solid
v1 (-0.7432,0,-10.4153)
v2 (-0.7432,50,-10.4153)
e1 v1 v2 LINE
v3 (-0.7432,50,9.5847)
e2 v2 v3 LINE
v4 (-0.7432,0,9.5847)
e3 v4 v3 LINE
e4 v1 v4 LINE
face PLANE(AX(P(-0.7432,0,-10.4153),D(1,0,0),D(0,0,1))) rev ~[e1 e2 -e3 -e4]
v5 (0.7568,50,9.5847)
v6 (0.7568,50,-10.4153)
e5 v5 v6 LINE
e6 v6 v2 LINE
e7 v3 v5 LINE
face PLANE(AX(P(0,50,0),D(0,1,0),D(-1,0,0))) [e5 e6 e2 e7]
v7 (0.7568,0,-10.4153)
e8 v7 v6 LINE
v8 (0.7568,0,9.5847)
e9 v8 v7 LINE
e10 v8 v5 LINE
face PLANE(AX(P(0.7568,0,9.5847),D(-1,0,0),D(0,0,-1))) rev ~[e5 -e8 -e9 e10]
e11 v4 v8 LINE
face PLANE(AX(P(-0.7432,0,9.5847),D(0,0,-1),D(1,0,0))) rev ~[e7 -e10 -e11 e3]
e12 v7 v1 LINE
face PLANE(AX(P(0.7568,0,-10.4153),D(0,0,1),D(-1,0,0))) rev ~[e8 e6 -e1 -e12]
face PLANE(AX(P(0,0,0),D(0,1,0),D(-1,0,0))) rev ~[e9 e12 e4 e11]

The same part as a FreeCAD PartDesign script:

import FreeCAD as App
import Part
import Sketcher

V = App.Vector
Q = App.Units.Quantity

doc = App.newDocument("Part")
body = doc.addObject("PartDesign::Body", "Body")

# Sketch on XZ plane
sketch1 = body.newObject("Sketcher::SketchObject", "Sketch")
sketch1.AttachmentSupport = (doc.getObject("XZ_Plane"), [""])
sketch1.MapMode = "FlatFace"
sketch1.addGeometry(Part.LineSegment(V(-0.7, -10.4, 0), V(-0.7, 9.6, 0)), False)
sketch1.addGeometry(Part.LineSegment(V(-0.7, 9.6, 0), V(0.8, 9.6, 0)), False)
sketch1.addGeometry(Part.LineSegment(V(0.8, 9.6, 0), V(0.8, -10.4, 0)), False)
sketch1.addGeometry(Part.LineSegment(V(0.8, -10.4, 0), V(-0.7, -10.4, 0)), False)
sketch1.addConstraint(Sketcher.Constraint("Coincident", 0, 2, 1, 1))
sketch1.addConstraint(Sketcher.Constraint("Coincident", 1, 2, 2, 1))
sketch1.addConstraint(Sketcher.Constraint("Coincident", 2, 2, 3, 1))
sketch1.addConstraint(Sketcher.Constraint("Coincident", 3, 2, 0, 1))
sketch1.addConstraint(Sketcher.Constraint("Vertical", 0))
sketch1.addConstraint(Sketcher.Constraint("Horizontal", 1))
sketch1.addConstraint(Sketcher.Constraint("Vertical", 2))
sketch1.addConstraint(Sketcher.Constraint("Horizontal", 3))
sketch1.addConstraint(Sketcher.Constraint("DistanceY", 0, 1, 0, 2, Q("20 mm")))
sketch1.addConstraint(Sketcher.Constraint("DistanceX", 1, 1, 1, 2, Q("1.5 mm")))
sketch1.addConstraint(Sketcher.Constraint("DistanceX", 0, 2, -1, 1, Q("0.7432 mm")))
sketch1.addConstraint(Sketcher.Constraint("DistanceY", -1, 1, 0, 2, Q("9.5847 mm")))
pad1 = body.newObject("PartDesign::Pad", "Pad")
pad1.Profile = sketch1
pad1.Length = 50
pad1.Reversed = True

doc.recompute()
